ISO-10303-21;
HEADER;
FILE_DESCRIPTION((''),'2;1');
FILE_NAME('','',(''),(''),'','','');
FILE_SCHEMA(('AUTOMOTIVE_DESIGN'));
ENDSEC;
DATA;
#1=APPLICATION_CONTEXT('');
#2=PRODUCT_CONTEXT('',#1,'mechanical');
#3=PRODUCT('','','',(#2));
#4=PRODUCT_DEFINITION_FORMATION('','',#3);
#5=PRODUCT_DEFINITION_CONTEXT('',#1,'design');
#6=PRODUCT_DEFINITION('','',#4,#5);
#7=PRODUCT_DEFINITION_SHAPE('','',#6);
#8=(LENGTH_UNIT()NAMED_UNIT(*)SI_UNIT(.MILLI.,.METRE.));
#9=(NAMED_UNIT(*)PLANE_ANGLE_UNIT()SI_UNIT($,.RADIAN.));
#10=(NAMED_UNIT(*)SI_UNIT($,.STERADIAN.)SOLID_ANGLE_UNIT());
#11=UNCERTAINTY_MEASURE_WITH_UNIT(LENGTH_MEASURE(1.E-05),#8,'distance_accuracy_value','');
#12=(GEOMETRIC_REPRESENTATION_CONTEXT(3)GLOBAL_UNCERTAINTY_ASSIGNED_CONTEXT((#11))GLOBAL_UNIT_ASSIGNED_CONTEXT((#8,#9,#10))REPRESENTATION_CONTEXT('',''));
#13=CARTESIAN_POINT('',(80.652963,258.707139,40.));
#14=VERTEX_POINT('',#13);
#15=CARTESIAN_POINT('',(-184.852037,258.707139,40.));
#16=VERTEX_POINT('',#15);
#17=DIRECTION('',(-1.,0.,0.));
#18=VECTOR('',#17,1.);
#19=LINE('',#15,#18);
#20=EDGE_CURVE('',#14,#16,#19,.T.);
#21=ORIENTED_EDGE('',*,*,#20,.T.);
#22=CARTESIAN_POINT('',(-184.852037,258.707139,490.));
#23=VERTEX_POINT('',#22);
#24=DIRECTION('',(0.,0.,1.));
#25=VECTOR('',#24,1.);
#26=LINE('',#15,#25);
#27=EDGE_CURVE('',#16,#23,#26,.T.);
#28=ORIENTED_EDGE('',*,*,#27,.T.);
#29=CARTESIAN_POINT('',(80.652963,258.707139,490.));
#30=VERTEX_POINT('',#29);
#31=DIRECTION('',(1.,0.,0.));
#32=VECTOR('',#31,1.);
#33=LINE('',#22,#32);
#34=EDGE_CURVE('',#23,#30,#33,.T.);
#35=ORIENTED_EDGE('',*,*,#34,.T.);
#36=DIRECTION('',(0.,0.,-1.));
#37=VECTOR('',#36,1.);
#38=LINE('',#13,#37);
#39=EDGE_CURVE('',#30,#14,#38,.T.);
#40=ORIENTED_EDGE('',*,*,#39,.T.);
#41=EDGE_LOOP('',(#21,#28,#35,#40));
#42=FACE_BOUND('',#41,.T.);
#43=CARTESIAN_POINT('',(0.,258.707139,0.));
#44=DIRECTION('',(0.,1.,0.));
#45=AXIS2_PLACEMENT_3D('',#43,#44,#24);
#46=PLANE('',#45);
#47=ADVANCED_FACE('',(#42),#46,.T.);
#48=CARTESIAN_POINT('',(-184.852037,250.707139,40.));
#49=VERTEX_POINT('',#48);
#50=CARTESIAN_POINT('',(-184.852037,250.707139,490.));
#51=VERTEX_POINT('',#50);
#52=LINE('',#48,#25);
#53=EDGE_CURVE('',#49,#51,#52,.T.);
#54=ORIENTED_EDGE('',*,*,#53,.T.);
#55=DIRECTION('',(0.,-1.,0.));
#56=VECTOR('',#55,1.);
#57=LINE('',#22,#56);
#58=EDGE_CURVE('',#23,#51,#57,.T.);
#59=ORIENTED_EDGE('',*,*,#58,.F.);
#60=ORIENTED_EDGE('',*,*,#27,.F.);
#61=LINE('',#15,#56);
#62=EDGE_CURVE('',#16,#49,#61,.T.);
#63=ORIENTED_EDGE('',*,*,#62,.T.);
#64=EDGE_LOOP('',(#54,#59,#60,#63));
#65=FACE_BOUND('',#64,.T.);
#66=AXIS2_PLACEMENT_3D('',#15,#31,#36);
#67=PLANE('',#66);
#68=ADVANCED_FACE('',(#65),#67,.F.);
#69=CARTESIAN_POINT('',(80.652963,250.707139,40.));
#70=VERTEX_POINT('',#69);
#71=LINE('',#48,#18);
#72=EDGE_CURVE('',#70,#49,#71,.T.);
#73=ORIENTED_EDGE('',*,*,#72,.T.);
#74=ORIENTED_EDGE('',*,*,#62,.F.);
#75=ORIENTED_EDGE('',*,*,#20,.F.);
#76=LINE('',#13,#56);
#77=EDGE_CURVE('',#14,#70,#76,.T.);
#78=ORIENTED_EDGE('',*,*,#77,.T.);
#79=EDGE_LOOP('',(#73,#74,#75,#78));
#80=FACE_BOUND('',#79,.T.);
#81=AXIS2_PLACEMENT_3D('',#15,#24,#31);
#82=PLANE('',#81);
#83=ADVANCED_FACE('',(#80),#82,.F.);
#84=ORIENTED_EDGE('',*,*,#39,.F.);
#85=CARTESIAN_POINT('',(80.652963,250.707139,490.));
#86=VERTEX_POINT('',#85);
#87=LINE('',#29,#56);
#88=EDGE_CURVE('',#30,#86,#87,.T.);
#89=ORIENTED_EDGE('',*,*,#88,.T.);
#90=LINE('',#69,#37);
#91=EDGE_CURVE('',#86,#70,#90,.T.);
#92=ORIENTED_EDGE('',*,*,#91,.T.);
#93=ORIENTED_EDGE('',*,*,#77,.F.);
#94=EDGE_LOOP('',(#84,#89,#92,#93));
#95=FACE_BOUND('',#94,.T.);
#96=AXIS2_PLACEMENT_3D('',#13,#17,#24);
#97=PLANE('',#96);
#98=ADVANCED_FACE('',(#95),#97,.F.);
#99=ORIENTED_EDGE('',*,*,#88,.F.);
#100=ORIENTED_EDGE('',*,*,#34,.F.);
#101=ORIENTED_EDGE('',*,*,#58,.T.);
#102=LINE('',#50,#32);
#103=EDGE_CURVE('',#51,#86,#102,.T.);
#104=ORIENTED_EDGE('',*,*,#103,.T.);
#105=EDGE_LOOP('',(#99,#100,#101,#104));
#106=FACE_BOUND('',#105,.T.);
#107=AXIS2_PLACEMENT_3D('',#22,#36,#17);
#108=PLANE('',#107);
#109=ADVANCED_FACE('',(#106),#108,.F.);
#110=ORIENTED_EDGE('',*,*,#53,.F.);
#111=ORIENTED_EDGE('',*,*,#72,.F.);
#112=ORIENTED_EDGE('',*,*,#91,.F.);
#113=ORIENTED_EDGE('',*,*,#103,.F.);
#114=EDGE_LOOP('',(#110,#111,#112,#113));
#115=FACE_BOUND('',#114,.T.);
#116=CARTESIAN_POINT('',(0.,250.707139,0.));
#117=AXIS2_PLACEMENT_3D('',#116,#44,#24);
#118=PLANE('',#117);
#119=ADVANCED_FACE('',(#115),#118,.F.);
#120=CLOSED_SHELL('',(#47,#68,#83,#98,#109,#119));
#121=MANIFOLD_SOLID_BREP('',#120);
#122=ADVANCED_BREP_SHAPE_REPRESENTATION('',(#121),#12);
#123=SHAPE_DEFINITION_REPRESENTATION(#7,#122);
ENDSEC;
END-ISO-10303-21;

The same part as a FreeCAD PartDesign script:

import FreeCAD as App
import Part
import Sketcher

V = App.Vector


def add_polygon(sketch, points):
    """Adds a closed chain of lines whose ends are joined by coincident constraints."""
    first, n = sketch.GeometryCount, len(points)
    for a, b in zip(points, points[1:] + points[:1]):
        sketch.addGeometry(Part.LineSegment(App.Vector(*a, 0), App.Vector(*b, 0)), False)
    for i in range(n):
        sketch.addConstraint(Sketcher.Constraint("Coincident", first + i, 2, first + (i + 1) % n, 1))

doc = App.newDocument("Part")
body = doc.addObject("PartDesign::Body", "Body")

# Sketch on XZ plane
sketch1 = body.newObject("Sketcher::SketchObject", "Sketch")
sketch1.AttachmentSupport = (doc.getObject("XZ_Plane"), [""])
sketch1.MapMode = "FlatFace"
sketch1.AttachmentOffset = App.Placement(V(0, 0, -254.707139), App.Rotation())
add_polygon(sketch1, [(-185, 40), (-185, 490), (81, 490), (81, 40)])  # lines 0-3
sketch1.addConstraint([
    Sketcher.Constraint("Vertical", 0),
    Sketcher.Constraint("Horizontal", 1),
    Sketcher.Constraint("Vertical", 2),
    Sketcher.Constraint("Horizontal", 3),
    Sketcher.Constraint("DistanceY", 0, 1, 0, 2, 450.0),
    Sketcher.Constraint("DistanceY", -1, 1, 0, 2, 490.0),
    Sketcher.Constraint("DistanceX", 1, 1, 1, 2, 265.505),
    Sketcher.Constraint("DistanceX", 0, 2, -1, 1, 184.852037),
])
pad1 = body.newObject("PartDesign::Pad", "Pad")
pad1.Profile = sketch1
pad1.Length = 8
pad1.Midplane = True

doc.recompute()
